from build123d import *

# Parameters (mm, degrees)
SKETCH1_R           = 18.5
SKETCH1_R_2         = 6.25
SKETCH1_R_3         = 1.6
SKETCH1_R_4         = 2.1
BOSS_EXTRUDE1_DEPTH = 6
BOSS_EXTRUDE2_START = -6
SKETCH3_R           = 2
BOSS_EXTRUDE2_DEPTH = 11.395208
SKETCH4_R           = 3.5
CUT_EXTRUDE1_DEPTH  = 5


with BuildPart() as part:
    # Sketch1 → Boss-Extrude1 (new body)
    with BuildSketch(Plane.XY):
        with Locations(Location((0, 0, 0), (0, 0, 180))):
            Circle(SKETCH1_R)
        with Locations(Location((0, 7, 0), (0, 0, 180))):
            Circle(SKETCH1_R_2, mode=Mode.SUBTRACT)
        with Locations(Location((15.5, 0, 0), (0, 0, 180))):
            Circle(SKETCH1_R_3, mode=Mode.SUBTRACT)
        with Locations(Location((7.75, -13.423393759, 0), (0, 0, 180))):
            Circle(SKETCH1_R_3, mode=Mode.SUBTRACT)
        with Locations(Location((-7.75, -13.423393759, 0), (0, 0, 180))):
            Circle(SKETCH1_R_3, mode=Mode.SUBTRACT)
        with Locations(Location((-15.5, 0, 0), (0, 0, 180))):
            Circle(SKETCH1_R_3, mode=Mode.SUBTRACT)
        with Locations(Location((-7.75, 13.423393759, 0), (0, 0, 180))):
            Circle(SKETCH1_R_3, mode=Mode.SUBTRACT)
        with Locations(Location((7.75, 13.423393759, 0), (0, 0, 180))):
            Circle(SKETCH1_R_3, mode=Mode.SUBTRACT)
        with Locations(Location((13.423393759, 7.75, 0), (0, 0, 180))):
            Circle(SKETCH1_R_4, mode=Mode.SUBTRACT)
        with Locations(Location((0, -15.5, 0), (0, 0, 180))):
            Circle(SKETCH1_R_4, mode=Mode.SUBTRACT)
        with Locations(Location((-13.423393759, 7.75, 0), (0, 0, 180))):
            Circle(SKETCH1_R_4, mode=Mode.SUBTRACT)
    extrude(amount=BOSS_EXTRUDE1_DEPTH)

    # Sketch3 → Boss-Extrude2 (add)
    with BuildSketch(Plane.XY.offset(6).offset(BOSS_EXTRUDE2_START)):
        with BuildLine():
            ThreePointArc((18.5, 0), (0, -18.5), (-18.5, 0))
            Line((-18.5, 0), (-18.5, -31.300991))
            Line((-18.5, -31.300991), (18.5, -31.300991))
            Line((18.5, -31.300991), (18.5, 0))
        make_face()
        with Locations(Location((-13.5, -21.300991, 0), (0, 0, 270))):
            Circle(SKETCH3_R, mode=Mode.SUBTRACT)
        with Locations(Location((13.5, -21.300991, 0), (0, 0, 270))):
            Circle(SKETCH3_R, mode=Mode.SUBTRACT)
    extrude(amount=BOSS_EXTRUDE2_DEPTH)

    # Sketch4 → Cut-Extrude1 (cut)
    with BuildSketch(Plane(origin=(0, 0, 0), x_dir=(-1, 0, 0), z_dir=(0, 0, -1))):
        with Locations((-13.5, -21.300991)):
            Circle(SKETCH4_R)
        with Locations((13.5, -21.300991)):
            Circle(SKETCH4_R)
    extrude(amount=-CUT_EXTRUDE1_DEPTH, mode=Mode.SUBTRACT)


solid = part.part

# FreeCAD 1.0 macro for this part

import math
import FreeCAD as App
import Part
import Sketcher

doc = App.newDocument("Part")
body = doc.addObject("PartDesign::Body", "Body")

sketch1 = doc.addObject("Sketcher::SketchObject", "Sketch")
body.addObject(sketch1)
sketch1.AttachmentSupport = (doc.XY_Plane, [""])
sketch1.MapMode = "FlatFace"
sketch1.addGeometry([
    Part.Circle(App.Vector(0, 0, 0), App.Vector(0, 0, 1), 18.5),
    Part.Circle(App.Vector(13.4, 7.8, 0), App.Vector(0, 0, 1), 2.1),
    Part.Circle(App.Vector(7.8, 13.4, 0), App.Vector(0, 0, 1), 1.6),
    Part.Circle(App.Vector(15.5, 0, 0), App.Vector(0, 0, 1), 1.6),
    Part.Circle(App.Vector(-7.8, 13.4, 0), App.Vector(0, 0, 1), 1.6),
    Part.Circle(App.Vector(0, 7, 0), App.Vector(0, 0, 1), 6.2),
    Part.Circle(App.Vector(-13.4, 7.8, 0), App.Vector(0, 0, 1), 2.1),
    Part.Circle(App.Vector(-15.5, 0, 0), App.Vector(0, 0, 1), 1.6),
    Part.Circle(App.Vector(7.8, -13.4, 0), App.Vector(0, 0, 1), 1.6),
    Part.Circle(App.Vector(0, -15.5, 0), App.Vector(0, 0, 1), 2.1),
    Part.Circle(App.Vector(-7.8, -13.4, 0), App.Vector(0, 0, 1), 1.6),
], False)
sketch1.addConstraint([
    Sketcher.Constraint("Coincident", 0, 3, -1, 1),
    Sketcher.Constraint("Equal", 2, 3),
    Sketcher.Constraint("Equal", 3, 4),
    Sketcher.Constraint("Equal", 1, 6),
    Sketcher.Constraint("Equal", 4, 7),
    Sketcher.Constraint("Equal", 7, 8),
    Sketcher.Constraint("Equal", 6, 9),
    Sketcher.Constraint("Equal", 8, 10),
    Sketcher.Constraint("Symmetric", 3, 3, 7, 3, -1, 1),
    Sketcher.Constraint("Symmetric", 4, 3, 8, 3, -1, 1),
    Sketcher.Constraint("Symmetric", 2, 3, 10, 3, -1, 1),
    Sketcher.Constraint("Symmetric", 2, 3, 4, 3, -2),
    Sketcher.Constraint("Symmetric", 1, 3, 6, 3, -2),
    Sketcher.Constraint("PointOnObject", 3, 3, -1),
    Sketcher.Constraint("PointOnObject", 5, 3, -2),
    Sketcher.Constraint("PointOnObject", 9, 3, -2),
    Sketcher.Constraint("Diameter", 0, 37.0),
    Sketcher.Constraint("Diameter", 1, 4.2),
    Sketcher.Constraint("Diameter", 2, 3.2),
    Sketcher.Constraint("Diameter", 5, 12.5),
    Sketcher.Constraint("DistanceY", -1, 1, 5, 3, 7.0),
    Sketcher.Constraint("DistanceX", -1, 1, 3, 3, 15.5),
    Sketcher.Constraint("DistanceY", 9, 3, -1, 1, 15.5),
    Sketcher.Constraint("DistanceX", 4, 3, 2, 3, 15.5),
    Sketcher.Constraint("DistanceY", -1, 1, 1, 3, 7.75),
    Sketcher.Constraint("DistanceX", -1, 1, 1, 3, 13.423394),
    Sketcher.Constraint("DistanceY", -1, 1, 2, 3, 13.423394),
])
pad1 = doc.addObject("PartDesign::Pad", "Pad")
body.addObject(pad1)
pad1.Profile = sketch1
pad1.Length = 6

sketch2 = doc.addObject("Sketcher::SketchObject", "Sketch001")
body.addObject(sketch2)
sketch2.AttachmentSupport = (doc.XY_Plane, [""])
sketch2.MapMode = "FlatFace"
sketch2.addGeometry([
    Part.ArcOfCircle(Part.Circle(App.Vector(0, 0, 0), App.Vector(0, 0, 1), 18.5), math.radians(180), math.radians(360)),
    Part.LineSegment(App.Vector(-18.5, 0, 0), App.Vector(-18.5, -31.3, 0)),
    Part.LineSegment(App.Vector(-18.5, -31.3, 0), App.Vector(18.5, -31.3, 0)),
    Part.LineSegment(App.Vector(18.5, -31.3, 0), App.Vector(18.5, 0, 0)),
    Part.Circle(App.Vector(-13.5, -21.3, 0), App.Vector(0, 0, 1), 2),
    Part.Circle(App.Vector(13.5, -21.3, 0), App.Vector(0, 0, 1), 2),
], False)
sketch2.addConstraint([
    Sketcher.Constraint("Tangent", 0, 1, 1, 1),
    Sketcher.Constraint("Coincident", 1, 2, 2, 1),
    Sketcher.Constraint("Coincident", 2, 2, 3, 1),
    Sketcher.Constraint("Tangent", 3, 2, 0, 2),
    Sketcher.Constraint("Vertical", 1),
    Sketcher.Constraint("Horizontal", 2),
    Sketcher.Constraint("Vertical", 3),
    Sketcher.Constraint("Coincident", 0, 3, -1, 1),
    Sketcher.Constraint("Equal", 4, 5),
    Sketcher.Constraint("Symmetric", 4, 3, 5, 3, -2),
    Sketcher.Constraint("Diameter", 4, 4.0),
    Sketcher.Constraint("Radius", 0, 18.5),
    Sketcher.Constraint("DistanceX", 4, 3, 5, 3, 27.0),
    Sketcher.Constraint("DistanceY", 1, 2, 4, 3, 10.0),
    Sketcher.Constraint("DistanceY", 1, 2, 1, 1, 31.300991),
])
pad2 = doc.addObject("PartDesign::Pad", "Pad001")
body.addObject(pad2)
pad2.Profile = sketch2
pad2.Length = 11.395208

sketch3 = doc.addObject("Sketcher::SketchObject", "Sketch002")
body.addObject(sketch3)
sketch3.AttachmentSupport = (doc.XY_Plane, [""])
sketch3.MapMode = "FlatFace"
sketch3.addGeometry([
    Part.Circle(App.Vector(13.5, -21.3, 0), App.Vector(0, 0, 1), 3.5),
    Part.Circle(App.Vector(-13.5, -21.3, 0), App.Vector(0, 0, 1), 3.5),
], False)
sketch3.addConstraint([
    Sketcher.Constraint("Equal", 0, 1),
    Sketcher.Constraint("Symmetric", 0, 3, 1, 3, -2),
    Sketcher.Constraint("Diameter", 0, 7.0),
    Sketcher.Constraint("DistanceX", 1, 3, 0, 3, 27.0),
    Sketcher.Constraint("DistanceY", 0, 3, -1, 1, 21.300991),
])
pocket1 = doc.addObject("PartDesign::Pocket", "Pocket")
body.addObject(pocket1)
pocket1.Profile = sketch3
pocket1.Length = 5
pocket1.Reversed = True

doc.recompute()
